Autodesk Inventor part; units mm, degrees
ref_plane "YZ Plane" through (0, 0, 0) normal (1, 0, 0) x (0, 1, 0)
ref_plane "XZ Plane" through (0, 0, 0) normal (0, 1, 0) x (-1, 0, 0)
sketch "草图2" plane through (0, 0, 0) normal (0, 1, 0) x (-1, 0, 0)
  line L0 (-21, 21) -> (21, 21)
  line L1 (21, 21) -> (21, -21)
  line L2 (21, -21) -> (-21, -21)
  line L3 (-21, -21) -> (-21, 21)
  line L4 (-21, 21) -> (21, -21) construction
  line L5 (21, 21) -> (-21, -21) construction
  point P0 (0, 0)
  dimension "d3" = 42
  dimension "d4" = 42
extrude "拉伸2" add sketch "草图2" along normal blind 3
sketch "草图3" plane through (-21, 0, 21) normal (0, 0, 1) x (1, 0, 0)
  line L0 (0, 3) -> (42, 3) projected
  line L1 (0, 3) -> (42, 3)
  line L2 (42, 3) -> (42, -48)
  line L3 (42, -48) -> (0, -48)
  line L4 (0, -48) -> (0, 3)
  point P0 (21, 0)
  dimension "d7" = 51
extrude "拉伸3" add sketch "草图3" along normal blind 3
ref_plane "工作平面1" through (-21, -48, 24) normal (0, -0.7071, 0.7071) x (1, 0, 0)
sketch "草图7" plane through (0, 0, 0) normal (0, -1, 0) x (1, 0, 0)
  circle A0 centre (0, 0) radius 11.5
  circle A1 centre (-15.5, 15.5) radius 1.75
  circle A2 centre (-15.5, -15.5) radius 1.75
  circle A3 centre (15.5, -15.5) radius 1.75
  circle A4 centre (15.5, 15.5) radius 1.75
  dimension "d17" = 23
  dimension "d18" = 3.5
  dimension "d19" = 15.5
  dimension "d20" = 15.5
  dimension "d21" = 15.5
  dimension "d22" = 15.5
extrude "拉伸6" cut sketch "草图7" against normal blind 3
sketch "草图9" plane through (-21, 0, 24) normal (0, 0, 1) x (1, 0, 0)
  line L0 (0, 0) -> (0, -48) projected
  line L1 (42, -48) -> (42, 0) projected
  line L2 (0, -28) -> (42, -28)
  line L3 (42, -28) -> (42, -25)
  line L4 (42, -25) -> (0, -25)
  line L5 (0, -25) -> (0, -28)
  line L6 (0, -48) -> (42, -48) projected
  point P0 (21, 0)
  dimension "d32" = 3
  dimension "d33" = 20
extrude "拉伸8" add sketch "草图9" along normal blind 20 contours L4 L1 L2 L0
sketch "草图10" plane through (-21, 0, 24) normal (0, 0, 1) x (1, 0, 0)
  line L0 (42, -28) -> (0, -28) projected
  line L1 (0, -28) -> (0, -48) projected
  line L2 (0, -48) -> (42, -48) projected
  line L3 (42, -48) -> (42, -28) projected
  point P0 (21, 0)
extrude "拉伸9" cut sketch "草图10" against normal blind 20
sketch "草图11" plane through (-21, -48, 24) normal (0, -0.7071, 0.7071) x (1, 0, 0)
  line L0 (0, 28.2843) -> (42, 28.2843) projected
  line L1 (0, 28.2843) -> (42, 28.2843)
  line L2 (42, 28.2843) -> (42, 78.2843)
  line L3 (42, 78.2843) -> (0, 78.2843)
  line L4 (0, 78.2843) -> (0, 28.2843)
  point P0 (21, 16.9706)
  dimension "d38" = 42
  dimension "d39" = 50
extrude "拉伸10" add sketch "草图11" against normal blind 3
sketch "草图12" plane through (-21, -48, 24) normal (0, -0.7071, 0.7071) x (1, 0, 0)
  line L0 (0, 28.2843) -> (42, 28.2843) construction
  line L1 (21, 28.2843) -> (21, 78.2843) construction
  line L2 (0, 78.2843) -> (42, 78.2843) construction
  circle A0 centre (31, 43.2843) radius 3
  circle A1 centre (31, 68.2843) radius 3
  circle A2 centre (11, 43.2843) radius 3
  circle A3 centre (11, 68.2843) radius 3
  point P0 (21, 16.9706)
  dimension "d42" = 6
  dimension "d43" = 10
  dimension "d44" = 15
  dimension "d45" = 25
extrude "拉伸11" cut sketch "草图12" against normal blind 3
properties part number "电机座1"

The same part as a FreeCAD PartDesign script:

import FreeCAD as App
import Part
import Sketcher
from FreeCAD import Vector

doc = App.newDocument("Part")
params = doc.addObject("Spreadsheet::Sheet", "Params")
for row, (alias, value) in enumerate([
    ("sketch1_width", "42 mm"),
    ("pad1_length", "3 mm"),
    ("sketch2_height", "51 mm"),
    ("sketch2_width", "42 mm"),
    ("pad2_length", "3 mm"),
    ("sketch3_diameter", "23 mm"),
    ("sketch3_diameter2", "3.5 mm"),
    ("pocket1_length", "3 mm"),
    ("sketch4_height", "3 mm"),
    ("sketch4_width", "42 mm"),
    ("pad3_length", "20 mm"),
    ("sketch5_width", "42 mm"),
    ("sketch5_height", "20 mm"),
    ("pocket2_length", "20 mm"),
    ("sketch6_width", "42 mm"),
    ("sketch6_height", "50 mm"),
    ("pad4_length", "3 mm"),
    ("sketch7_diameter", "6 mm"),
    ("pocket3_length", "3 mm"),
], start=1):
    params.set(f"A{row}", alias)
    params.set(f"B{row}", "=" + value)
    params.setAlias(f"B{row}", alias)

body = doc.addObject("PartDesign::Body", "Body")

sketch1 = body.newObject("Sketcher::SketchObject", "Sketch")
sketch1.AttachmentSupport = (doc.getObject("XZ_Plane"), [""])
sketch1.MapMode = "FlatFace"
sketch1.addGeometry(Part.LineSegment(Vector(-21, 21, 0), Vector(21, 21, 0)), False)
sketch1.addGeometry(Part.LineSegment(Vector(21, 21, 0), Vector(21, -21, 0)), False)
sketch1.addGeometry(Part.LineSegment(Vector(21, -21, 0), Vector(-21, -21, 0)), False)
sketch1.addGeometry(Part.LineSegment(Vector(-21, -21, 0), Vector(-21, 21, 0)), False)
sketch1.addConstraint(Sketcher.Constraint("Coincident", 0, 2, 1, 1))
sketch1.addConstraint(Sketcher.Constraint("Coincident", 1, 2, 2, 1))
sketch1.addConstraint(Sketcher.Constraint("Coincident", 2, 2, 3, 1))
sketch1.addConstraint(Sketcher.Constraint("Coincident", 3, 2, 0, 1))
sketch1.addConstraint(Sketcher.Constraint("Horizontal", 0))
sketch1.addConstraint(Sketcher.Constraint("Vertical", 1))
sketch1.addConstraint(Sketcher.Constraint("Horizontal", 2))
sketch1.addConstraint(Sketcher.Constraint("Vertical", 3))
sketch1.addConstraint(Sketcher.Constraint("Symmetric", 0, 2, 2, 2, -1, 1))
sketch1.addConstraint(Sketcher.Constraint("Equal", 2, 1))
sketch1.addConstraint(Sketcher.Constraint("DistanceX", 0, 1, 0, 2, 42.0))
sketch1.setExpression("Constraints[10]", "Params.sketch1_width")
pad1 = body.newObject("PartDesign::Pad", "Pad")
pad1.Profile = sketch1
pad1.setExpression("Length", "Params.pad1_length")
pad1.Reversed = True

sketch2 = body.newObject("Sketcher::SketchObject", "Sketch001")
sketch2.AttachmentSupport = (doc.getObject("XY_Plane"), [""])
sketch2.MapMode = "FlatFace"
sketch2.AttachmentOffset = App.Placement(Vector(0, 0, 21), App.Rotation())
sketch2.addGeometry(Part.LineSegment(Vector(21, 3, 0), Vector(-21, 3, 0)), False)
sketch2.addGeometry(Part.LineSegment(Vector(-21, 3, 0), Vector(-21, -48, 0)), False)
sketch2.addGeometry(Part.LineSegment(Vector(-21, -48, 0), Vector(21, -48, 0)), False)
sketch2.addGeometry(Part.LineSegment(Vector(21, -48, 0), Vector(21, 3, 0)), False)
sketch2.addConstraint(Sketcher.Constraint("Coincident", 0, 2, 1, 1))
sketch2.addConstraint(Sketcher.Constraint("Coincident", 1, 2, 2, 1))
sketch2.addConstraint(Sketcher.Constraint("Coincident", 2, 2, 3, 1))
sketch2.addConstraint(Sketcher.Constraint("Coincident", 3, 2, 0, 1))
sketch2.addConstraint(Sketcher.Constraint("Horizontal", 0))
sketch2.addConstraint(Sketcher.Constraint("Vertical", 1))
sketch2.addConstraint(Sketcher.Constraint("Horizontal", 2))
sketch2.addConstraint(Sketcher.Constraint("Vertical", 3))
sketch2.addConstraint(Sketcher.Constraint("DistanceY", 1, 2, 1, 1, 51.0))
sketch2.addConstraint(Sketcher.Constraint("DistanceX", 0, 2, 0, 1, 42.0))
sketch2.addConstraint(Sketcher.Constraint("DistanceX", 0, 2, -1, 1, 21.0))
sketch2.addConstraint(Sketcher.Constraint("DistanceY", -1, 1, 0, 2, 3.0))
sketch2.setExpression("Constraints[8]", "Params.sketch2_height")
sketch2.setExpression("Constraints[9]", "Params.sketch2_width")
pad2 = body.newObject("PartDesign::Pad", "Pad001")
pad2.Profile = sketch2
pad2.setExpression("Length", "Params.pad2_length")

sketch3 = body.newObject("Sketcher::SketchObject", "Sketch002")
sketch3.AttachmentSupport = (doc.getObject("XZ_Plane"), [""])
sketch3.MapMode = "FlatFace"
sketch3.addGeometry(Part.Circle(Vector(0, 0, 0), Vector(0, 0, 1), 11.5), False)
sketch3.addGeometry(Part.Circle(Vector(-15.5, 15.5, 0), Vector(0, 0, 1), 1.75), False)
sketch3.addGeometry(Part.Circle(Vector(-15.5, -15.5, 0), Vector(0, 0, 1), 1.75), False)
sketch3.addGeometry(Part.Circle(Vector(15.5, -15.5, 0), Vector(0, 0, 1), 1.75), False)
sketch3.addGeometry(Part.Circle(Vector(15.5, 15.5, 0), Vector(0, 0, 1), 1.75), False)
sketch3.addConstraint(Sketcher.Constraint("Coincident", 0, 3, -1, 1))
sketch3.addConstraint(Sketcher.Constraint("Equal", 1, 2))
sketch3.addConstraint(Sketcher.Constraint("Equal", 2, 3))
sketch3.addConstraint(Sketcher.Constraint("Equal", 3, 4))
sketch3.addConstraint(Sketcher.Constraint("Symmetric", 1, 3, 3, 3, -1, 1))
sketch3.addConstraint(Sketcher.Constraint("Symmetric", 2, 3, 4, 3, -1, 1))
sketch3.addConstraint(Sketcher.Constraint("Symmetric", 2, 3, 3, 3, -2))
sketch3.addConstraint(Sketcher.Constraint("Diameter", 0, 23.0))
sketch3.addConstraint(Sketcher.Constraint("Diameter", 1, 3.5))
sketch3.addConstraint(Sketcher.Constraint("DistanceX", 1, 3, -1, 1, 15.5))
sketch3.addConstraint(Sketcher.Constraint("DistanceY", -1, 1, 1, 3, 15.5))
sketch3.setExpression("Constraints[7]", "Params.sketch3_diameter")
sketch3.setExpression("Constraints[8]", "Params.sketch3_diameter2")
pocket1 = body.newObject("PartDesign::Pocket", "Pocket")
pocket1.Profile = sketch3
pocket1.setExpression("Length", "Params.pocket1_length")

sketch4 = body.newObject("Sketcher::SketchObject", "Sketch003")
sketch4.AttachmentSupport = (doc.getObject("XY_Plane"), [""])
sketch4.MapMode = "FlatFace"
sketch4.AttachmentOffset = App.Placement(Vector(0, 0, 24), App.Rotation())
sketch4.addGeometry(Part.LineSegment(Vector(21, -25, 0), Vector(-21, -25, 0)), False)
sketch4.addGeometry(Part.LineSegment(Vector(-21, -25, 0), Vector(-21, -28, 0)), False)
sketch4.addGeometry(Part.LineSegment(Vector(-21, -28, 0), Vector(21, -28, 0)), False)
sketch4.addGeometry(Part.LineSegment(Vector(21, -28, 0), Vector(21, -25, 0)), False)
sketch4.addConstraint(Sketcher.Constraint("Coincident", 0, 2, 1, 1))
sketch4.addConstraint(Sketcher.Constraint("Coincident", 1, 2, 2, 1))
sketch4.addConstraint(Sketcher.Constraint("Coincident", 2, 2, 3, 1))
sketch4.addConstraint(Sketcher.Constraint("Coincident", 3, 2, 0, 1))
sketch4.addConstraint(Sketcher.Constraint("Horizontal", 0))
sketch4.addConstraint(Sketcher.Constraint("Vertical", 1))
sketch4.addConstraint(Sketcher.Constraint("Horizontal", 2))
sketch4.addConstraint(Sketcher.Constraint("Vertical", 3))
sketch4.addConstraint(Sketcher.Constraint("DistanceY", 1, 2, 1, 1, 3.0))
sketch4.addConstraint(Sketcher.Constraint("DistanceX", 0, 2, 0, 1, 42.0))
sketch4.addConstraint(Sketcher.Constraint("DistanceX", 0, 2, -1, 1, 21.0))
sketch4.addConstraint(Sketcher.Constraint("DistanceY", 0, 2, -1, 1, 25.0))
sketch4.setExpression("Constraints[8]", "Params.sketch4_height")
sketch4.setExpression("Constraints[9]", "Params.sketch4_width")
pad3 = body.newObject("PartDesign::Pad", "Pad002")
pad3.Profile = sketch4
pad3.setExpression("Length", "Params.pad3_length")

sketch5 = body.newObject("Sketcher::SketchObject", "Sketch004")
sketch5.AttachmentSupport = (doc.getObject("XY_Plane"), [""])
sketch5.MapMode = "FlatFace"
sketch5.AttachmentOffset = App.Placement(Vector(0, 0, 24), App.Rotation())
sketch5.addGeometry(Part.LineSegment(Vector(21, -48, 0), Vector(21, -28, 0)), False)
sketch5.addGeometry(Part.LineSegment(Vector(21, -28, 0), Vector(-21, -28, 0)), False)
sketch5.addGeometry(Part.LineSegment(Vector(-21, -28, 0), Vector(-21, -48, 0)), False)
sketch5.addGeometry(Part.LineSegment(Vector(-21, -48, 0), Vector(21, -48, 0)), False)
sketch5.addConstraint(Sketcher.Constraint("Coincident", 0, 2, 1, 1))
sketch5.addConstraint(Sketcher.Constraint("Coincident", 1, 2, 2, 1))
sketch5.addConstraint(Sketcher.Constraint("Coincident", 2, 2, 3, 1))
sketch5.addConstraint(Sketcher.Constraint("Coincident", 3, 2, 0, 1))
sketch5.addConstraint(Sketcher.Constraint("Vertical", 0))
sketch5.addConstraint(Sketcher.Constraint("Horizontal", 1))
sketch5.addConstraint(Sketcher.Constraint("Vertical", 2))
sketch5.addConstraint(Sketcher.Constraint("Horizontal", 3))
sketch5.addConstraint(Sketcher.Constraint("DistanceX", 1, 2, 1, 1, 42.0))
sketch5.addConstraint(Sketcher.Constraint("DistanceY", 0, 1, 0, 2, 20.0))
sketch5.addConstraint(Sketcher.Constraint("DistanceX", -1, 1, 0, 2, 21.0))
sketch5.addConstraint(Sketcher.Constraint("DistanceY", 0, 2, -1, 1, 28.0))
sketch5.setExpression("Constraints[8]", "Params.sketch5_width")
sketch5.setExpression("Constraints[9]", "Params.sketch5_height")
pocket2 = body.newObject("PartDesign::Pocket", "Pocket001")
pocket2.Profile = sketch5
pocket2.setExpression("Length", "Params.pocket2_length")

sketch6 = body.newObject("Sketcher::SketchObject", "Sketch005")
sketch6.Placement = App.Placement(Vector(-21, -48, 24), App.Rotation(Vector(1, 0, 0), Vector(0, 0.707106781, 0.707106781), Vector(0, -0.707106781, 0.707106781), "ZXY"))
sketch6.addGeometry(Part.LineSegment(Vector(0, 78.2843, 0), Vector(0, 28.2843, 0)), False)
sketch6.addGeometry(Part.LineSegment(Vector(0, 28.2843, 0), Vector(42, 28.2843, 0)), False)
sketch6.addGeometry(Part.LineSegment(Vector(42, 28.2843, 0), Vector(42, 78.2843, 0)), False)
sketch6.addGeometry(Part.LineSegment(Vector(42, 78.2843, 0), Vector(0, 78.2843, 0)), False)
sketch6.addConstraint(Sketcher.Constraint("Coincident", 0, 2, 1, 1))
sketch6.addConstraint(Sketcher.Constraint("Coincident", 1, 2, 2, 1))
sketch6.addConstraint(Sketcher.Constraint("Coincident", 2, 2, 3, 1))
sketch6.addConstraint(Sketcher.Constraint("Coincident", 3, 2, 0, 1))
sketch6.addConstraint(Sketcher.Constraint("Vertical", 0))
sketch6.addConstraint(Sketcher.Constraint("Horizontal", 1))
sketch6.addConstraint(Sketcher.Constraint("Vertical", 2))
sketch6.addConstraint(Sketcher.Constraint("Horizontal", 3))
sketch6.addConstraint(Sketcher.Constraint("PointOnObject", 0, 2, -2))
sketch6.addConstraint(Sketcher.Constraint("DistanceX", 1, 1, 1, 2, 42.0))
sketch6.addConstraint(Sketcher.Constraint("DistanceY", 0, 2, 0, 1, 50.0))
sketch6.addConstraint(Sketcher.Constraint("DistanceY", -1, 1, 0, 2, 28.2843))
sketch6.setExpression("Constraints[9]", "Params.sketch6_width")
sketch6.setExpression("Constraints[10]", "Params.sketch6_height")
pad4 = body.newObject("PartDesign::Pad", "Pad003")
pad4.Profile = sketch6
pad4.setExpression("Length", "Params.pad4_length")
pad4.Reversed = True

sketch7 = body.newObject("Sketcher::SketchObject", "Sketch006")
sketch7.Placement = App.Placement(Vector(-21, -48, 24), App.Rotation(Vector(1, 0, 0), Vector(0, 0.707106781, 0.707106781), Vector(0, -0.707106781, 0.707106781), "ZXY"))
sketch7.addGeometry(Part.Circle(Vector(31, 43.2843, 0), Vector(0, 0, 1), 3), False)
sketch7.addGeometry(Part.Circle(Vector(31, 68.2843, 0), Vector(0, 0, 1), 3), False)
sketch7.addGeometry(Part.Circle(Vector(11, 43.2843, 0), Vector(0, 0, 1), 3), False)
sketch7.addGeometry(Part.Circle(Vector(11, 68.2843, 0), Vector(0, 0, 1), 3), False)
sketch7.addConstraint(Sketcher.Constraint("Equal", 0, 1))
sketch7.addConstraint(Sketcher.Constraint("Equal", 1, 2))
sketch7.addConstraint(Sketcher.Constraint("Equal", 2, 3))
sketch7.addConstraint(Sketcher.Constraint("Horizontal", 0, 3, 2, 3))
sketch7.addConstraint(Sketcher.Constraint("Horizontal", 1, 3, 3, 3))
sketch7.addConstraint(Sketcher.Constraint("Vertical", 0, 3, 1, 3))
sketch7.addConstraint(Sketcher.Constraint("Vertical", 2, 3, 3, 3))
sketch7.addConstraint(Sketcher.Constraint("Diameter", 0, 6.0))
sketch7.addConstraint(Sketcher.Constraint("DistanceY", 0, 3, 1, 3, 25.0))
sketch7.addConstraint(Sketcher.Constraint("DistanceX", -1, 1, 0, 3, 31.0))
sketch7.addConstraint(Sketcher.Constraint("DistanceX", -1, 1, 2, 3, 11.0))
sketch7.addConstraint(Sketcher.Constraint("DistanceY", -1, 1, 0, 3, 43.2843))
sketch7.setExpression("Constraints[7]", "Params.sketch7_diameter")
pocket3 = body.newObject("PartDesign::Pocket", "Pocket002")
pocket3.Profile = sketch7
pocket3.setExpression("Length", "Params.pocket3_length")

doc.recompute()
